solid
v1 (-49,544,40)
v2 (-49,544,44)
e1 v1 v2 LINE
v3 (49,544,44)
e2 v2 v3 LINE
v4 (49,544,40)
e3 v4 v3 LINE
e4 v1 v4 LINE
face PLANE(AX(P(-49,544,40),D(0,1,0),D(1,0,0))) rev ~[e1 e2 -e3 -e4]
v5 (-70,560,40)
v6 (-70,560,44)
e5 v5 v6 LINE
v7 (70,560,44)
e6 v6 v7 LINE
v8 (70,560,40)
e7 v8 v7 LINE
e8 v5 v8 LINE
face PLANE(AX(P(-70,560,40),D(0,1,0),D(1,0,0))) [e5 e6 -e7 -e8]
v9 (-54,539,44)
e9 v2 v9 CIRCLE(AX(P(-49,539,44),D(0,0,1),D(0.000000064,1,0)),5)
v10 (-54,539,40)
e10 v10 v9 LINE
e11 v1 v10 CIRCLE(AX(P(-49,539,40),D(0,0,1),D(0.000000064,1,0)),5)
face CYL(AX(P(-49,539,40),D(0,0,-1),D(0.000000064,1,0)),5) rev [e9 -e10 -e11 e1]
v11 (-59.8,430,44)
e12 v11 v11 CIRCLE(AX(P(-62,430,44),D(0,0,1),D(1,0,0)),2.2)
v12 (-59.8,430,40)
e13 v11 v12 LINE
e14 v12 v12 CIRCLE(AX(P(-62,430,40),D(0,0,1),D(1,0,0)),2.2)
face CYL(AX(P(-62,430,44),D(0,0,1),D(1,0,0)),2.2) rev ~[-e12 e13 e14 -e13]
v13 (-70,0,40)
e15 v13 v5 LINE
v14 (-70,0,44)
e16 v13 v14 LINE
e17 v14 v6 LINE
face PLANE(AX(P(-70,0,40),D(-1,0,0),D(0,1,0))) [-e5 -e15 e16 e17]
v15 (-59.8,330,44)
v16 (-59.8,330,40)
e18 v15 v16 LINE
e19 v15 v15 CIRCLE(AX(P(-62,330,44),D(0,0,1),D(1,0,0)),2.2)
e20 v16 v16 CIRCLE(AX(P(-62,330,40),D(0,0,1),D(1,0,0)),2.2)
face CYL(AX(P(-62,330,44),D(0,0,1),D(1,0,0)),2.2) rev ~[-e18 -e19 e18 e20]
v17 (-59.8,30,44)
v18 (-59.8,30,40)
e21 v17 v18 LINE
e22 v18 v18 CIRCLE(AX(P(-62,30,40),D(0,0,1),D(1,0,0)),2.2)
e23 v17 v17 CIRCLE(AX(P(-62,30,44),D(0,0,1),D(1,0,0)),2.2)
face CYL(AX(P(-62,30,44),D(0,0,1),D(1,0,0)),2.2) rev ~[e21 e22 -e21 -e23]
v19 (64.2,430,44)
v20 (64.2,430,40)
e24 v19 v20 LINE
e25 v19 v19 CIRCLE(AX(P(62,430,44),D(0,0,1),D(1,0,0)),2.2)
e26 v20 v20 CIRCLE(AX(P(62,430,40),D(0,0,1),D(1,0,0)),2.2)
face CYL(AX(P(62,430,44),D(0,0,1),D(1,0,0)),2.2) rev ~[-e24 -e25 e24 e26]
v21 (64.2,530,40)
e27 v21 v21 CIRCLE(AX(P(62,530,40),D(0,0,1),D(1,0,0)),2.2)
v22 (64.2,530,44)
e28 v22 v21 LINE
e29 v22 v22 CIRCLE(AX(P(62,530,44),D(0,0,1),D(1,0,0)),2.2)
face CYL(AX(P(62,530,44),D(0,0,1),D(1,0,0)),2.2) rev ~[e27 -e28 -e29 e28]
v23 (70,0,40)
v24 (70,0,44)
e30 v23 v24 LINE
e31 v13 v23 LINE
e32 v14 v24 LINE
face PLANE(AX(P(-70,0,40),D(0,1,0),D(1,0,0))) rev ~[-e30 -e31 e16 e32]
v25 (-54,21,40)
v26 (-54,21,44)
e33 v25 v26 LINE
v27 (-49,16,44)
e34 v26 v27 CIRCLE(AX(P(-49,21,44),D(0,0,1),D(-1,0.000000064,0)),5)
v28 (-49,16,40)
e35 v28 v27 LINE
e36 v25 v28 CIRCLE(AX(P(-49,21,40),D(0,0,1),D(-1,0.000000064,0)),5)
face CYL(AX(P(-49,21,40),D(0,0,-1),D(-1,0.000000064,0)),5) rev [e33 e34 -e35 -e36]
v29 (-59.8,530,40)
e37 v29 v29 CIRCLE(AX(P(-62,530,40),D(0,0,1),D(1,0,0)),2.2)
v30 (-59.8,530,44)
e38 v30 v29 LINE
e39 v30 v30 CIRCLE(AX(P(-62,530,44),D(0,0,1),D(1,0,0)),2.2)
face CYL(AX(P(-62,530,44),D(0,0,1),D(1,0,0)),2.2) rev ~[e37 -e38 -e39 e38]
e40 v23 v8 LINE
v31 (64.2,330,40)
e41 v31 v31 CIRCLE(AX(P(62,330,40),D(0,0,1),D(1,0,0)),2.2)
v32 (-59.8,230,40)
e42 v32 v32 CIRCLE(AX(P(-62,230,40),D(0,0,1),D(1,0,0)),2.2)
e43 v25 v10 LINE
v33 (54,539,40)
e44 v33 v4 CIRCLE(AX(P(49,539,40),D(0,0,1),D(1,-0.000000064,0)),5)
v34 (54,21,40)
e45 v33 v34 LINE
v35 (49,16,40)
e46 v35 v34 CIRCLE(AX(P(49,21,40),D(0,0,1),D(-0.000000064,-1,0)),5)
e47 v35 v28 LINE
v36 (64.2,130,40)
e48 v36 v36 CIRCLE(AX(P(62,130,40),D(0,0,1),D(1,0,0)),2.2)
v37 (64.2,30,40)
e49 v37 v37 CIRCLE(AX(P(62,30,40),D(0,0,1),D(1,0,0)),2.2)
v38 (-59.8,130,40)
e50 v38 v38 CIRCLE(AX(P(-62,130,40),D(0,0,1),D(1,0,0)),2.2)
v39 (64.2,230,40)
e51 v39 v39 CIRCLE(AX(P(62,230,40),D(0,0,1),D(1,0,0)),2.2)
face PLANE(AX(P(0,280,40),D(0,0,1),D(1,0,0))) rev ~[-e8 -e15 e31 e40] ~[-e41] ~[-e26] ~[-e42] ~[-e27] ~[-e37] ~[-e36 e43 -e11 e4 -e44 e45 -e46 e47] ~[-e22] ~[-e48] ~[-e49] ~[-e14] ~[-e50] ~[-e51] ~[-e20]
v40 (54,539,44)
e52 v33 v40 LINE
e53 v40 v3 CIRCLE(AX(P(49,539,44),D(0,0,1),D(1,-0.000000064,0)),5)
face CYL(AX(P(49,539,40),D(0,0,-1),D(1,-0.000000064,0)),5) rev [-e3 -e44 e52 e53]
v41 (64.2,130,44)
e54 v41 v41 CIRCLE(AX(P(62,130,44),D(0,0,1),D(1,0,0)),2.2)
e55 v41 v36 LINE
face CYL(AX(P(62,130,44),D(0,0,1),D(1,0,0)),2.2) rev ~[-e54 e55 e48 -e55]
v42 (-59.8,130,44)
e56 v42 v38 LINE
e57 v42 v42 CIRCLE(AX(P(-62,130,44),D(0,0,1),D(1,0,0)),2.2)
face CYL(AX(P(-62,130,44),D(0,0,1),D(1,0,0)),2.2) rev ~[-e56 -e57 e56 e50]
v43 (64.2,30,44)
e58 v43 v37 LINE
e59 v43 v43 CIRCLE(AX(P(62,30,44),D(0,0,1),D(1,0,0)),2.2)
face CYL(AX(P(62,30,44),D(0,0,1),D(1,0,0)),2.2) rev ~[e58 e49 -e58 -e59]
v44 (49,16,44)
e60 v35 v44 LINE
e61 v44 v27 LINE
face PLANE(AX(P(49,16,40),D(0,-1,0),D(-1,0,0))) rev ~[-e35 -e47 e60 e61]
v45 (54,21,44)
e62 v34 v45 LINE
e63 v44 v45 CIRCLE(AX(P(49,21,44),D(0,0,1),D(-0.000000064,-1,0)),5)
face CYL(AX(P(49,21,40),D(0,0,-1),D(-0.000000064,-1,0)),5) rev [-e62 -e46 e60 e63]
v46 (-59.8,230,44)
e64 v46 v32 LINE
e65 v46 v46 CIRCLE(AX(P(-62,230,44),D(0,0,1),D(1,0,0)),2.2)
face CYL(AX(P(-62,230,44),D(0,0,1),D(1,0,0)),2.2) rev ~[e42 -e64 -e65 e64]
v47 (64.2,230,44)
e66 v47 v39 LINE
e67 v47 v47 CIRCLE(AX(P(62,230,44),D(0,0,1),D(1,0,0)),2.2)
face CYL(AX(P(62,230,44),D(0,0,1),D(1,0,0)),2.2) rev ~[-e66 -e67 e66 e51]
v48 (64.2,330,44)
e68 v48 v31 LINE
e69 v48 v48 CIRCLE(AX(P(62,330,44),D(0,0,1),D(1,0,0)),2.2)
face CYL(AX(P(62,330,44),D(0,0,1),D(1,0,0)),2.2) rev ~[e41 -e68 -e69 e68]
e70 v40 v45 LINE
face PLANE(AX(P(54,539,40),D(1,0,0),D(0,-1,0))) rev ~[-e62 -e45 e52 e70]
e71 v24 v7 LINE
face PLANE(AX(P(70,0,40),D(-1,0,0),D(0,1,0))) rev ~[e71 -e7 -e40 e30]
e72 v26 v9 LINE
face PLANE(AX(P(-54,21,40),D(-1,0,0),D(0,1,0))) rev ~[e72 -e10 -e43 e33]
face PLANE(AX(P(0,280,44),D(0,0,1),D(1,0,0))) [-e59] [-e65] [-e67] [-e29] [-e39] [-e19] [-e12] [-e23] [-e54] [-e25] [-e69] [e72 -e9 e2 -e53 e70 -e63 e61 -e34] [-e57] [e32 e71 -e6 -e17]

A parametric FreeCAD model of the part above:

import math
import FreeCAD as App
import Part
import Sketcher

V = App.Vector

doc = App.newDocument("Part")
body = doc.addObject("PartDesign::Body", "Body")

# Sketch on XY plane
sketch1 = body.newObject("Sketcher::SketchObject", "Sketch")
sketch1.AttachmentSupport = (doc.getObject("XY_Plane"), [""])
sketch1.MapMode = "FlatFace"
sketch1.addGeometry(Part.LineSegment(V(-70, 560, 0), V(-70, 0, 0)), False)
sketch1.addGeometry(Part.LineSegment(V(-70, 0, 0), V(70, 0, 0)), False)
sketch1.addGeometry(Part.LineSegment(V(70, 0, 0), V(70, 560, 0)), False)
sketch1.addGeometry(Part.LineSegment(V(70, 560, 0), V(-70, 560, 0)), False)
sketch1.addGeometry(Part.ArcOfCircle(Part.Circle(V(-49, 539, 0), V(0, 0, 1), 5), math.radians(90), math.radians(180)), False)
sketch1.addGeometry(Part.LineSegment(V(-49, 544, 0), V(49, 544, 0)), False)
sketch1.addGeometry(Part.ArcOfCircle(Part.Circle(V(49, 539, 0), V(0, 0, 1), 5), math.radians(0), math.radians(90)), False)
sketch1.addGeometry(Part.LineSegment(V(54, 539, 0), V(54, 21, 0)), False)
sketch1.addGeometry(Part.ArcOfCircle(Part.Circle(V(49, 21, 0), V(0, 0, 1), 5), math.radians(-90), math.radians(0)), False)
sketch1.addGeometry(Part.LineSegment(V(49, 16, 0), V(-49, 16, 0)), False)
sketch1.addGeometry(Part.ArcOfCircle(Part.Circle(V(-49, 21, 0), V(0, 0, 1), 5), math.radians(180), math.radians(270)), False)
sketch1.addGeometry(Part.LineSegment(V(-54, 21, 0), V(-54, 539, 0)), False)
sketch1.addConstraint(Sketcher.Constraint("Coincident", 0, 2, 1, 1))
sketch1.addConstraint(Sketcher.Constraint("Coincident", 1, 2, 2, 1))
sketch1.addConstraint(Sketcher.Constraint("Coincident", 2, 2, 3, 1))
sketch1.addConstraint(Sketcher.Constraint("Coincident", 3, 2, 0, 1))
sketch1.addConstraint(Sketcher.Constraint("Tangent", 4, 1, 5, 1))
sketch1.addConstraint(Sketcher.Constraint("Tangent", 5, 2, 6, 2))
sketch1.addConstraint(Sketcher.Constraint("Tangent", 6, 1, 7, 1))
sketch1.addConstraint(Sketcher.Constraint("Tangent", 7, 2, 8, 2))
sketch1.addConstraint(Sketcher.Constraint("Tangent", 8, 1, 9, 1))
sketch1.addConstraint(Sketcher.Constraint("Tangent", 9, 2, 10, 2))
sketch1.addConstraint(Sketcher.Constraint("Tangent", 10, 1, 11, 1))
sketch1.addConstraint(Sketcher.Constraint("Tangent", 11, 2, 4, 2))
sketch1.addConstraint(Sketcher.Constraint("Vertical", 0))
sketch1.addConstraint(Sketcher.Constraint("Horizontal", 1))
sketch1.addConstraint(Sketcher.Constraint("Vertical", 2))
sketch1.addConstraint(Sketcher.Constraint("Horizontal", 3))
sketch1.addConstraint(Sketcher.Constraint("Horizontal", 5))
sketch1.addConstraint(Sketcher.Constraint("Vertical", 7))
sketch1.addConstraint(Sketcher.Constraint("Horizontal", 9))
sketch1.addConstraint(Sketcher.Constraint("Vertical", 11))
sketch1.addConstraint(Sketcher.Constraint("Equal", 4, 6))
sketch1.addConstraint(Sketcher.Constraint("Equal", 6, 8))
sketch1.addConstraint(Sketcher.Constraint("Equal", 8, 10))
sketch1.addConstraint(Sketcher.Constraint("Symmetric", 0, 2, 1, 2, -1, 1))
sketch1.addConstraint(Sketcher.Constraint("Radius", 4, 5.0))
sketch1.addConstraint(Sketcher.Constraint("DistanceX", 1, 1, 1, 2, 140.0))
sketch1.addConstraint(Sketcher.Constraint("DistanceX", 5, 1, 5, 2, 98.0))
sketch1.addConstraint(Sketcher.Constraint("DistanceY", 0, 2, 0, 1, 560.0))
sketch1.addConstraint(Sketcher.Constraint("DistanceY", 7, 2, 7, 1, 518.0))
sketch1.addConstraint(Sketcher.Constraint("DistanceX", 4, 3, -1, 1, 49.0))
sketch1.addConstraint(Sketcher.Constraint("DistanceY", -1, 1, 4, 3, 539.0))
pad1 = body.newObject("PartDesign::Pad", "Pad")
pad1.Profile = sketch1
pad1.Length = 4

# Sketch on XY plane
sketch2 = body.newObject("Sketcher::SketchObject", "Sketch001")
sketch2.AttachmentSupport = (doc.getObject("XY_Plane"), [""])
sketch2.MapMode = "FlatFace"
sketch2.AttachmentOffset = App.Placement(V(0, 0, 4), App.Rotation())
sketch2.addGeometry(Part.Circle(V(62, 30, 0), V(0, 0, 1), 2.2), False)
sketch2.addGeometry(Part.Circle(V(-62, 30, 0), V(0, 0, 1), 2.2), False)
sketch2.addConstraint(Sketcher.Constraint("Equal", 0, 1))
sketch2.addConstraint(Sketcher.Constraint("Symmetric", 0, 3, 1, 3, -2))
sketch2.addConstraint(Sketcher.Constraint("Diameter", 0, 4.4))
sketch2.addConstraint(Sketcher.Constraint("DistanceX", -1, 1, 0, 3, 62.0))
sketch2.addConstraint(Sketcher.Constraint("DistanceY", -1, 1, 0, 3, 30.0))
pocket1 = body.newObject("PartDesign::Pocket", "Pocket")
pocket1.Profile = sketch2
pocket1.Type = "ThroughAll"
doc.recompute()

linearpattern = body.newObject("PartDesign::LinearPattern", "LinearPattern")
linearpattern.Originals = [pocket1]
linearpattern.Direction = (doc.getObject("Y_Axis"), [""])
linearpattern.Mode = "offset"
linearpattern.Offset = 100
linearpattern.Occurrences = 6
body.Tip = linearpattern
body2 = doc.addObject("PartDesign::Body", "Body001")
doc.recompute()

body.Placement = App.Placement(V(0, 0, 40), App.Rotation(V(0, 0, 1), 0))
boolean = body2.newObject("PartDesign::Boolean", "Boolean")
boolean.Type = "Fuse"
boolean.addObjects([body])

doc.recompute()
